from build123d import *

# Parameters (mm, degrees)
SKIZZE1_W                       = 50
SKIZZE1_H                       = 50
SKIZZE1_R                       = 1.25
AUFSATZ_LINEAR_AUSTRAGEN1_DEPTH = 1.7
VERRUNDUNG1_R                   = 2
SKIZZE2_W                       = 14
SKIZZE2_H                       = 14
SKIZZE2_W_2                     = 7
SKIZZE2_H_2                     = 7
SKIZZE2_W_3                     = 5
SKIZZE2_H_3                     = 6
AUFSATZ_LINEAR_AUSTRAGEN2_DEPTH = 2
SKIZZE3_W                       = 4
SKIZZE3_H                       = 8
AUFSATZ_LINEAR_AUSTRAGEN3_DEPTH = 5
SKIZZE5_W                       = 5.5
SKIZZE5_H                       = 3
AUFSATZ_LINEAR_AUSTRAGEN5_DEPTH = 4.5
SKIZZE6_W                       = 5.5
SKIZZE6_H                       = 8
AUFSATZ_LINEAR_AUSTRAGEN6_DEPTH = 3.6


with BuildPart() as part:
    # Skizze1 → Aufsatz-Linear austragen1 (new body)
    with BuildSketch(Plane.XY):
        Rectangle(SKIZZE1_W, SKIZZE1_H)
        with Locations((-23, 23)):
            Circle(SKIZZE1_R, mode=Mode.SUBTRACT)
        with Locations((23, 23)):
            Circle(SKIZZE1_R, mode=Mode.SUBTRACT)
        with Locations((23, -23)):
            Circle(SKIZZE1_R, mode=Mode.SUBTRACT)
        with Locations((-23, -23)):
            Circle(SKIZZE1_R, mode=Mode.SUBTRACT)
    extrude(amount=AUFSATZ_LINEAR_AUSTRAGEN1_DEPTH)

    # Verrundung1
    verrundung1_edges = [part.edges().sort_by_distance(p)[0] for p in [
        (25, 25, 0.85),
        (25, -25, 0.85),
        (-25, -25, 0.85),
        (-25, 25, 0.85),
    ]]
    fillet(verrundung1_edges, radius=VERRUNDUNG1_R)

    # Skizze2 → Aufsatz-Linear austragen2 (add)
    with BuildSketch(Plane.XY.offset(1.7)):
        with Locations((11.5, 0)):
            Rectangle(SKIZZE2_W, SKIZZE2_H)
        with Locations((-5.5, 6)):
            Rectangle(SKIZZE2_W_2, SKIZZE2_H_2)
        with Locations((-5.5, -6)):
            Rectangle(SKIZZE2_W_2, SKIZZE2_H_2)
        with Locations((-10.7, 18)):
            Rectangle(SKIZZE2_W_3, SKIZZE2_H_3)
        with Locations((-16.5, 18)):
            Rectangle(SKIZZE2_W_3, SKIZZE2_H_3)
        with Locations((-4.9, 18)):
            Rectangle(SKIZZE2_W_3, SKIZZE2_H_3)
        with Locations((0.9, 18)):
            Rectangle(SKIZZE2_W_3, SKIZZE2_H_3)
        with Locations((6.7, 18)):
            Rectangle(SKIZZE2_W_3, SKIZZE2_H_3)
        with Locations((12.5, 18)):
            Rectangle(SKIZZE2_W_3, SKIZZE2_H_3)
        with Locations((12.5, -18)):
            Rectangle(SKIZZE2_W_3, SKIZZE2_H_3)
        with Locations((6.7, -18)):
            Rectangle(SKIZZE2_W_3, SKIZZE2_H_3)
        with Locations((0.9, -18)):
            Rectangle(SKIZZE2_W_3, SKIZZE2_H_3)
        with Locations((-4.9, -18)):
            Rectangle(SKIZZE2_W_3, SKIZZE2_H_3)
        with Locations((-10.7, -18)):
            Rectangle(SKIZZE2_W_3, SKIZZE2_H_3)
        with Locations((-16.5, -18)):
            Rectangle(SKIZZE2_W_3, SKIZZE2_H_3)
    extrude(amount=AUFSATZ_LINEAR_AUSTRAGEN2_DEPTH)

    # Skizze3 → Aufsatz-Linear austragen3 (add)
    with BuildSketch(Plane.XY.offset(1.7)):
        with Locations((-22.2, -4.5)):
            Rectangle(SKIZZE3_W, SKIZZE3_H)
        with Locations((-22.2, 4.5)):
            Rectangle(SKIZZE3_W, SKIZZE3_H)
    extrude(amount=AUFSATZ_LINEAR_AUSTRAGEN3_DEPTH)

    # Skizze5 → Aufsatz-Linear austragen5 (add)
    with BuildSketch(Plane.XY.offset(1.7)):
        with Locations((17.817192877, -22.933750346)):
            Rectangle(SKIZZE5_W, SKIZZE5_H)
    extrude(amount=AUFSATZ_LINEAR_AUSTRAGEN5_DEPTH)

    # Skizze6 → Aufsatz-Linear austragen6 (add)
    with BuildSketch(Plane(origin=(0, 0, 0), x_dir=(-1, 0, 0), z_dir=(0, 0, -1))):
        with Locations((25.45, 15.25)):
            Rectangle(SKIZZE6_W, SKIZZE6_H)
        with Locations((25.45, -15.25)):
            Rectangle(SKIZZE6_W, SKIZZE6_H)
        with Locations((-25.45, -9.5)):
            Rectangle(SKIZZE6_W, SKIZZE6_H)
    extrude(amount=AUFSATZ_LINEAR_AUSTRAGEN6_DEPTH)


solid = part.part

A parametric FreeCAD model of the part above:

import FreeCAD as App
import Part
import Sketcher


def edges_at(feature, points):
    """Names of the edges that pass closest to the given points."""
    edges = feature.Shape.Edges
    near = lambda p: min(range(len(edges)), key=lambda i: edges[i].distToShape(Part.Vertex(*p))[0])
    return sorted({f"Edge{near(p) + 1}" for p in points})


def add_polygon(sketch, points):
    """Adds a closed chain of lines whose ends are joined by coincident constraints."""
    first, n = sketch.GeometryCount, len(points)
    for a, b in zip(points, points[1:] + points[:1]):
        sketch.addGeometry(Part.LineSegment(App.Vector(*a, 0), App.Vector(*b, 0)), False)
    for i in range(n):
        sketch.addConstraint(Sketcher.Constraint("Coincident", first + i, 2, first + (i + 1) % n, 1))

doc = App.newDocument("Part")
body = doc.addObject("PartDesign::Body", "Body")

# Sketch on XY plane
sketch1 = doc.addObject("Sketcher::SketchObject", "Sketch")
body.addObject(sketch1)
sketch1.AttachmentSupport = (doc.XY_Plane, [""])
sketch1.MapMode = "FlatFace"
add_polygon(sketch1, [(-25, 25), (-25, -25), (25, -25), (25, 25)])  # lines 0-3
sketch1.addGeometry(Part.Circle(App.Vector(-23, -23, 0), App.Vector(0, 0, 1), 1.2), False)  # 4
sketch1.addGeometry(Part.Circle(App.Vector(23, -23, 0), App.Vector(0, 0, 1), 1.2), False)  # 5
sketch1.addGeometry(Part.Circle(App.Vector(-23, 23, 0), App.Vector(0, 0, 1), 1.2), False)  # 6
sketch1.addGeometry(Part.Circle(App.Vector(23, 23, 0), App.Vector(0, 0, 1), 1.2), False)  # 7
sketch1.addConstraint(Sketcher.Constraint("Vertical", 0))
sketch1.addConstraint(Sketcher.Constraint("Horizontal", 1))
sketch1.addConstraint(Sketcher.Constraint("Vertical", 2))
sketch1.addConstraint(Sketcher.Constraint("Horizontal", 3))
sketch1.addConstraint(Sketcher.Constraint("Equal", 4, 5))
sketch1.addConstraint(Sketcher.Constraint("Equal", 5, 6))
sketch1.addConstraint(Sketcher.Constraint("Equal", 6, 7))
sketch1.addConstraint(Sketcher.Constraint("Symmetric", 5, 3, 6, 3, -1, 1))
sketch1.addConstraint(Sketcher.Constraint("Symmetric", 4, 3, 7, 3, -1, 1))
sketch1.addConstraint(Sketcher.Constraint("Symmetric", 0, 2, 2, 2, -1, 1))
sketch1.addConstraint(Sketcher.Constraint("Symmetric", 4, 3, 5, 3, -2))
sketch1.addConstraint(Sketcher.Constraint("Equal", 3, 0))
sketch1.addConstraint(Sketcher.Constraint("Diameter", 4, 2.5))
sketch1.addConstraint(Sketcher.Constraint("DistanceX", 1, 1, 1, 2, 50.0))
sketch1.addConstraint(Sketcher.Constraint("DistanceX", 4, 3, -1, 1, 23.0))
sketch1.addConstraint(Sketcher.Constraint("DistanceY", 4, 3, -1, 1, 23.0))
pad1 = doc.addObject("PartDesign::Pad", "Pad")
body.addObject(pad1)
pad1.Profile = sketch1
pad1.Length = 1.7
doc.recompute()

fillet = doc.addObject("PartDesign::Fillet", "Fillet")
body.addObject(fillet)
fillet.Base = (pad1, edges_at(pad1, [
    (25, 25, 0.85),
    (25, -25, 0.85),
    (-25, -25, 0.85),
    (-25, 25, 0.85),
]))
fillet.Radius = 2

# Sketch on XY plane
sketch2 = doc.addObject("Sketcher::SketchObject", "Sketch001")
body.addObject(sketch2)
sketch2.AttachmentSupport = (doc.XY_Plane, [""])
sketch2.MapMode = "FlatFace"
sketch2.AttachmentOffset = App.Placement(App.Vector(0, 0, 1.7), App.Rotation())
add_polygon(sketch2, [(4.5, 7), (4.5, -7), (18.5, -7), (18.5, 7)])  # lines 0-3
add_polygon(sketch2, [(-9, 9.5), (-9, 2.5), (-2, 2.5), (-2, 9.5)])  # lines 4-7
add_polygon(sketch2, [(-9, -2.5), (-9, -9.5), (-2, -9.5), (-2, -2.5)])  # lines 8-11
add_polygon(sketch2, [(-13.2, 21), (-13.2, 15), (-8.2, 15), (-8.2, 21)])  # lines 12-15
add_polygon(sketch2, [(-19, 21), (-19, 15), (-14, 15), (-14, 21)])  # lines 16-19
add_polygon(sketch2, [(-7.4, 21), (-7.4, 15), (-2.4, 15), (-2.4, 21)])  # lines 20-23
add_polygon(sketch2, [(-1.6, 21), (-1.6, 15), (3.4, 15), (3.4, 21)])  # lines 24-27
add_polygon(sketch2, [(4.2, 21), (4.2, 15), (9.2, 15), (9.2, 21)])  # lines 28-31
add_polygon(sketch2, [(10, 21), (10, 15), (15, 15), (15, 21)])  # lines 32-35
add_polygon(sketch2, [(10, -15), (10, -21), (15, -21), (15, -15)])  # lines 36-39
add_polygon(sketch2, [(4.2, -15), (4.2, -21), (9.2, -21), (9.2, -15)])  # lines 40-43
add_polygon(sketch2, [(-1.6, -15), (-1.6, -21), (3.4, -21), (3.4, -15)])  # lines 44-47
add_polygon(sketch2, [(-7.4, -15), (-7.4, -21), (-2.4, -21), (-2.4, -15)])  # lines 48-51
add_polygon(sketch2, [(-13.2, -15), (-13.2, -21), (-8.2, -21), (-8.2, -15)])  # lines 52-55
add_polygon(sketch2, [(-19, -15), (-19, -21), (-14, -21), (-14, -15)])  # lines 56-59
sketch2.addConstraint(Sketcher.Constraint("Vertical", 0))
sketch2.addConstraint(Sketcher.Constraint("Horizontal", 1))
sketch2.addConstraint(Sketcher.Constraint("Vertical", 2))
sketch2.addConstraint(Sketcher.Constraint("Horizontal", 3))
sketch2.addConstraint(Sketcher.Constraint("Vertical", 4))
sketch2.addConstraint(Sketcher.Constraint("Horizontal", 5))
sketch2.addConstraint(Sketcher.Constraint("Vertical", 6))
sketch2.addConstraint(Sketcher.Constraint("Horizontal", 7))
sketch2.addConstraint(Sketcher.Constraint("Vertical", 8))
sketch2.addConstraint(Sketcher.Constraint("Horizontal", 9))
sketch2.addConstraint(Sketcher.Constraint("Vertical", 10))
sketch2.addConstraint(Sketcher.Constraint("Horizontal", 11))
sketch2.addConstraint(Sketcher.Constraint("Vertical", 12))
sketch2.addConstraint(Sketcher.Constraint("Horizontal", 13))
sketch2.addConstraint(Sketcher.Constraint("Vertical", 14))
sketch2.addConstraint(Sketcher.Constraint("Horizontal", 15))
sketch2.addConstraint(Sketcher.Constraint("Vertical", 16))
sketch2.addConstraint(Sketcher.Constraint("Horizontal", 17))
sketch2.addConstraint(Sketcher.Constraint("Vertical", 18))
sketch2.addConstraint(Sketcher.Constraint("Horizontal", 19))
sketch2.addConstraint(Sketcher.Constraint("Vertical", 20))
sketch2.addConstraint(Sketcher.Constraint("Horizontal", 21))
sketch2.addConstraint(Sketcher.Constraint("Vertical", 22))
sketch2.addConstraint(Sketcher.Constraint("Horizontal", 23))
sketch2.addConstraint(Sketcher.Constraint("Vertical", 24))
sketch2.addConstraint(Sketcher.Constraint("Horizontal", 25))
sketch2.addConstraint(Sketcher.Constraint("Vertical", 26))
sketch2.addConstraint(Sketcher.Constraint("Horizontal", 27))
sketch2.addConstraint(Sketcher.Constraint("Vertical", 28))
sketch2.addConstraint(Sketcher.Constraint("Horizontal", 29))
sketch2.addConstraint(Sketcher.Constraint("Vertical", 30))
sketch2.addConstraint(Sketcher.Constraint("Horizontal", 31))
sketch2.addConstraint(Sketcher.Constraint("Vertical", 32))
sketch2.addConstraint(Sketcher.Constraint("Horizontal", 33))
sketch2.addConstraint(Sketcher.Constraint("Vertical", 34))
sketch2.addConstraint(Sketcher.Constraint("Horizontal", 35))
sketch2.addConstraint(Sketcher.Constraint("Vertical", 36))
sketch2.addConstraint(Sketcher.Constraint("Horizontal", 37))
sketch2.addConstraint(Sketcher.Constraint("Vertical", 38))
sketch2.addConstraint(Sketcher.Constraint("Horizontal", 39))
sketch2.addConstraint(Sketcher.Constraint("Vertical", 40))
sketch2.addConstraint(Sketcher.Constraint("Horizontal", 41))
sketch2.addConstraint(Sketcher.Constraint("Vertical", 42))
sketch2.addConstraint(Sketcher.Constraint("Horizontal", 43))
sketch2.addConstraint(Sketcher.Constraint("Vertical", 44))
sketch2.addConstraint(Sketcher.Constraint("Horizontal", 45))
sketch2.addConstraint(Sketcher.Constraint("Vertical", 46))
sketch2.addConstraint(Sketcher.Constraint("Horizontal", 47))
sketch2.addConstraint(Sketcher.Constraint("Vertical", 48))
sketch2.addConstraint(Sketcher.Constraint("Horizontal", 49))
sketch2.addConstraint(Sketcher.Constraint("Vertical", 50))
sketch2.addConstraint(Sketcher.Constraint("Horizontal", 51))
sketch2.addConstraint(Sketcher.Constraint("Vertical", 52))
sketch2.addConstraint(Sketcher.Constraint("Horizontal", 53))
sketch2.addConstraint(Sketcher.Constraint("Vertical", 54))
sketch2.addConstraint(Sketcher.Constraint("Horizontal", 55))
sketch2.addConstraint(Sketcher.Constraint("Vertical", 56))
sketch2.addConstraint(Sketcher.Constraint("Horizontal", 57))
sketch2.addConstraint(Sketcher.Constraint("Vertical", 58))
sketch2.addConstraint(Sketcher.Constraint("Horizontal", 59))
sketch2.addConstraint(Sketcher.Constraint("Symmetric", 7, 2, 8, 2, -1))
sketch2.addConstraint(Sketcher.Constraint("Symmetric", 5, 2, 10, 2, -1))
sketch2.addConstraint(Sketcher.Constraint("Symmetric", 35, 2, 36, 2, -1))
sketch2.addConstraint(Sketcher.Constraint("Symmetric", 33, 2, 38, 2, -1))
sketch2.addConstraint(Sketcher.Constraint("Symmetric", 31, 2, 40, 2, -1))
sketch2.addConstraint(Sketcher.Constraint("Symmetric", 29, 2, 42, 2, -1))
sketch2.addConstraint(Sketcher.Constraint("Symmetric", 27, 2, 44, 2, -1))
sketch2.addConstraint(Sketcher.Constraint("Symmetric", 25, 2, 46, 2, -1))
sketch2.addConstraint(Sketcher.Constraint("Symmetric", 23, 2, 48, 2, -1))
sketch2.addConstraint(Sketcher.Constraint("Symmetric", 21, 2, 50, 2, -1))
sketch2.addConstraint(Sketcher.Constraint("Symmetric", 15, 2, 52, 2, -1))
sketch2.addConstraint(Sketcher.Constraint("Symmetric", 13, 2, 54, 2, -1))
sketch2.addConstraint(Sketcher.Constraint("Symmetric", 19, 2, 56, 2, -1))
sketch2.addConstraint(Sketcher.Constraint("Symmetric", 17, 2, 58, 2, -1))
sketch2.addConstraint(Sketcher.Constraint("Horizontal", 13, 2, 16, 2))
sketch2.addConstraint(Sketcher.Constraint("Horizontal", 15, 2, 18, 2))
sketch2.addConstraint(Sketcher.Constraint("Horizontal", 17, 2, 20, 2))
sketch2.addConstraint(Sketcher.Constraint("Horizontal", 19, 2, 22, 2))
sketch2.addConstraint(Sketcher.Constraint("Horizontal", 21, 2, 24, 2))
sketch2.addConstraint(Sketcher.Constraint("Horizontal", 23, 2, 26, 2))
sketch2.addConstraint(Sketcher.Constraint("Horizontal", 25, 2, 28, 2))
sketch2.addConstraint(Sketcher.Constraint("Horizontal", 27, 2, 30, 2))
sketch2.addConstraint(Sketcher.Constraint("Horizontal", 29, 2, 32, 2))
sketch2.addConstraint(Sketcher.Constraint("Horizontal", 31, 2, 34, 2))
sketch2.addConstraint(Sketcher.Constraint("Equal", 15, 17))
sketch2.addConstraint(Sketcher.Constraint("Equal", 19, 21))
sketch2.addConstraint(Sketcher.Constraint("Equal", 23, 25))
sketch2.addConstraint(Sketcher.Constraint("Equal", 27, 29))
sketch2.addConstraint(Sketcher.Constraint("Equal", 31, 33))
sketch2.addConstraint(Sketcher.Constraint("Equal", 3, 0))
sketch2.addConstraint(Sketcher.Constraint("Equal", 11, 4))
sketch2.addConstraint(Sketcher.Constraint("DistanceX", 1, 1, 1, 2, 14.0))
sketch2.addConstraint(Sketcher.Constraint("DistanceX", 5, 1, 5, 2, 7.0))
sketch2.addConstraint(Sketcher.Constraint("DistanceX", 13, 1, 13, 2, 5.0))
sketch2.addConstraint(Sketcher.Constraint("DistanceY", 12, 2, 12, 1, 6.0))
sketch2.addConstraint(Sketcher.Constraint("DistanceY", 0, 2, -1, 1, 7.0))
sketch2.addConstraint(Sketcher.Constraint("DistanceX", 4, 2, -1, 1, 9.0))
sketch2.addConstraint(Sketcher.Constraint("DistanceY", -1, 1, 12, 2, 15.0))
sketch2.addConstraint(Sketcher.Constraint("DistanceX", 16, 2, -1, 1, 19.0))
sketch2.addConstraint(Sketcher.Constraint("DistanceX", -1, 1, 32, 2, 10.0))
sketch2.addConstraint(Sketcher.Constraint("DistanceY", 8, 2, 4, 2, 12.0))
sketch2.addConstraint(Sketcher.Constraint("DistanceX", -1, 1, 0, 2, 4.5))
sketch2.addConstraint(Sketcher.Constraint("DistanceX", 12, 2, -1, 1, 13.2))
sketch2.addConstraint(Sketcher.Constraint("DistanceX", 20, 2, -1, 1, 7.4))
sketch2.addConstraint(Sketcher.Constraint("DistanceX", 24, 2, -1, 1, 1.6))
sketch2.addConstraint(Sketcher.Constraint("DistanceX", -1, 1, 28, 2, 4.2))
pad2 = doc.addObject("PartDesign::Pad", "Pad001")
body.addObject(pad2)
pad2.Profile = sketch2
pad2.Length = 2

# Sketch on XY plane
sketch3 = doc.addObject("Sketcher::SketchObject", "Sketch002")
body.addObject(sketch3)
sketch3.AttachmentSupport = (doc.XY_Plane, [""])
sketch3.MapMode = "FlatFace"
sketch3.AttachmentOffset = App.Placement(App.Vector(0, 0, 1.7), App.Rotation())
add_polygon(sketch3, [(-24.2, -0.5), (-24.2, -8.5), (-20.2, -8.5), (-20.2, -0.5)])  # lines 0-3
add_polygon(sketch3, [(-24.2, 8.5), (-24.2, 0.5), (-20.2, 0.5), (-20.2, 8.5)])  # lines 4-7
sketch3.addConstraint(Sketcher.Constraint("Vertical", 0))
sketch3.addConstraint(Sketcher.Constraint("Horizontal", 1))
sketch3.addConstraint(Sketcher.Constraint("Vertical", 2))
sketch3.addConstraint(Sketcher.Constraint("Horizontal", 3))
sketch3.addConstraint(Sketcher.Constraint("Vertical", 4))
sketch3.addConstraint(Sketcher.Constraint("Horizontal", 5))
sketch3.addConstraint(Sketcher.Constraint("Vertical", 6))
sketch3.addConstraint(Sketcher.Constraint("Horizontal", 7))
sketch3.addConstraint(Sketcher.Constraint("Symmetric", 3, 2, 4, 2, -1))
sketch3.addConstraint(Sketcher.Constraint("Symmetric", 1, 2, 6, 2, -1))
sketch3.addConstraint(Sketcher.Constraint("DistanceX", 1, 1, 1, 2, 4.0))
sketch3.addConstraint(Sketcher.Constraint("DistanceY", 0, 2, 0, 1, 8.0))
sketch3.addConstraint(Sketcher.Constraint("DistanceY", 3, 2, 4, 2, 1.0))
sketch3.addConstraint(Sketcher.Constraint("DistanceX", 0, 2, -1, 1, 24.2))
pad3 = doc.addObject("PartDesign::Pad", "Pad002")
body.addObject(pad3)
pad3.Profile = sketch3
pad3.Length = 5

# Sketch on XY plane
sketch4 = doc.addObject("Sketcher::SketchObject", "Sketch003")
body.addObject(sketch4)
sketch4.AttachmentSupport = (doc.XY_Plane, [""])
sketch4.MapMode = "FlatFace"
sketch4.AttachmentOffset = App.Placement(App.Vector(0, 0, 1.7), App.Rotation())
add_polygon(sketch4, [(15.1, -21.4), (15.1, -24.4), (20.6, -24.4), (20.6, -21.4)])  # lines 0-3
sketch4.addConstraint(Sketcher.Constraint("Vertical", 0))
sketch4.addConstraint(Sketcher.Constraint("Horizontal", 1))
sketch4.addConstraint(Sketcher.Constraint("Vertical", 2))
sketch4.addConstraint(Sketcher.Constraint("Horizontal", 3))
sketch4.addConstraint(Sketcher.Constraint("DistanceY", 0, 2, 0, 1, 3.0))
sketch4.addConstraint(Sketcher.Constraint("DistanceX", 1, 1, 1, 2, 5.5))
sketch4.addConstraint(Sketcher.Constraint("DistanceY", 0, 2, -1, 1, 24.43375))
sketch4.addConstraint(Sketcher.Constraint("DistanceX", -1, 1, 0, 2, 15.067193))
pad4 = doc.addObject("PartDesign::Pad", "Pad003")
body.addObject(pad4)
pad4.Profile = sketch4
pad4.Length = 4.5

# Sketch on XY plane
sketch5 = doc.addObject("Sketcher::SketchObject", "Sketch004")
body.addObject(sketch5)
sketch5.AttachmentSupport = (doc.XY_Plane, [""])
sketch5.MapMode = "FlatFace"
add_polygon(sketch5, [(-23, 19), (-23, 11), (-28, 11), (-28, 19)])  # lines 0-3
add_polygon(sketch5, [(-23, -11), (-23, -19), (-28, -19), (-28, -11)])  # lines 4-7
add_polygon(sketch5, [(28, -6), (28, -14), (23, -14), (23, -6)])  # lines 8-11
sketch5.addConstraint(Sketcher.Constraint("Vertical", 0))
sketch5.addConstraint(Sketcher.Constraint("Horizontal", 1))
sketch5.addConstraint(Sketcher.Constraint("Vertical", 2))
sketch5.addConstraint(Sketcher.Constraint("Horizontal", 3))
sketch5.addConstraint(Sketcher.Constraint("Vertical", 4))
sketch5.addConstraint(Sketcher.Constraint("Horizontal", 5))
sketch5.addConstraint(Sketcher.Constraint("Vertical", 6))
sketch5.addConstraint(Sketcher.Constraint("Horizontal", 7))
sketch5.addConstraint(Sketcher.Constraint("Vertical", 8))
sketch5.addConstraint(Sketcher.Constraint("Horizontal", 9))
sketch5.addConstraint(Sketcher.Constraint("Vertical", 10))
sketch5.addConstraint(Sketcher.Constraint("Horizontal", 11))
sketch5.addConstraint(Sketcher.Constraint("Symmetric", 3, 2, 4, 2, -1))
sketch5.addConstraint(Sketcher.Constraint("Symmetric", 1, 2, 6, 2, -1))
sketch5.addConstraint(Sketcher.Constraint("Equal", 7, 9))
sketch5.addConstraint(Sketcher.Constraint("Equal", 6, 8))
sketch5.addConstraint(Sketcher.Constraint("DistanceY", 0, 2, 0, 1, 8.0))
sketch5.addConstraint(Sketcher.Constraint("DistanceX", 1, 2, 1, 1, 5.5))
sketch5.addConstraint(Sketcher.Constraint("DistanceX", 0, 2, -1, 1, 22.7))
sketch5.addConstraint(Sketcher.Constraint("DistanceX", -1, 1, 8, 2, 28.2))
sketch5.addConstraint(Sketcher.Constraint("DistanceY", 8, 2, -1, 1, 13.5))
sketch5.addConstraint(Sketcher.Constraint("DistanceY", 4, 2, 0, 2, 30.5))
pad5 = doc.addObject("PartDesign::Pad", "Pad004")
body.addObject(pad5)
pad5.Profile = sketch5
pad5.Length = 3.6
pad5.Reversed = True

doc.recompute()
